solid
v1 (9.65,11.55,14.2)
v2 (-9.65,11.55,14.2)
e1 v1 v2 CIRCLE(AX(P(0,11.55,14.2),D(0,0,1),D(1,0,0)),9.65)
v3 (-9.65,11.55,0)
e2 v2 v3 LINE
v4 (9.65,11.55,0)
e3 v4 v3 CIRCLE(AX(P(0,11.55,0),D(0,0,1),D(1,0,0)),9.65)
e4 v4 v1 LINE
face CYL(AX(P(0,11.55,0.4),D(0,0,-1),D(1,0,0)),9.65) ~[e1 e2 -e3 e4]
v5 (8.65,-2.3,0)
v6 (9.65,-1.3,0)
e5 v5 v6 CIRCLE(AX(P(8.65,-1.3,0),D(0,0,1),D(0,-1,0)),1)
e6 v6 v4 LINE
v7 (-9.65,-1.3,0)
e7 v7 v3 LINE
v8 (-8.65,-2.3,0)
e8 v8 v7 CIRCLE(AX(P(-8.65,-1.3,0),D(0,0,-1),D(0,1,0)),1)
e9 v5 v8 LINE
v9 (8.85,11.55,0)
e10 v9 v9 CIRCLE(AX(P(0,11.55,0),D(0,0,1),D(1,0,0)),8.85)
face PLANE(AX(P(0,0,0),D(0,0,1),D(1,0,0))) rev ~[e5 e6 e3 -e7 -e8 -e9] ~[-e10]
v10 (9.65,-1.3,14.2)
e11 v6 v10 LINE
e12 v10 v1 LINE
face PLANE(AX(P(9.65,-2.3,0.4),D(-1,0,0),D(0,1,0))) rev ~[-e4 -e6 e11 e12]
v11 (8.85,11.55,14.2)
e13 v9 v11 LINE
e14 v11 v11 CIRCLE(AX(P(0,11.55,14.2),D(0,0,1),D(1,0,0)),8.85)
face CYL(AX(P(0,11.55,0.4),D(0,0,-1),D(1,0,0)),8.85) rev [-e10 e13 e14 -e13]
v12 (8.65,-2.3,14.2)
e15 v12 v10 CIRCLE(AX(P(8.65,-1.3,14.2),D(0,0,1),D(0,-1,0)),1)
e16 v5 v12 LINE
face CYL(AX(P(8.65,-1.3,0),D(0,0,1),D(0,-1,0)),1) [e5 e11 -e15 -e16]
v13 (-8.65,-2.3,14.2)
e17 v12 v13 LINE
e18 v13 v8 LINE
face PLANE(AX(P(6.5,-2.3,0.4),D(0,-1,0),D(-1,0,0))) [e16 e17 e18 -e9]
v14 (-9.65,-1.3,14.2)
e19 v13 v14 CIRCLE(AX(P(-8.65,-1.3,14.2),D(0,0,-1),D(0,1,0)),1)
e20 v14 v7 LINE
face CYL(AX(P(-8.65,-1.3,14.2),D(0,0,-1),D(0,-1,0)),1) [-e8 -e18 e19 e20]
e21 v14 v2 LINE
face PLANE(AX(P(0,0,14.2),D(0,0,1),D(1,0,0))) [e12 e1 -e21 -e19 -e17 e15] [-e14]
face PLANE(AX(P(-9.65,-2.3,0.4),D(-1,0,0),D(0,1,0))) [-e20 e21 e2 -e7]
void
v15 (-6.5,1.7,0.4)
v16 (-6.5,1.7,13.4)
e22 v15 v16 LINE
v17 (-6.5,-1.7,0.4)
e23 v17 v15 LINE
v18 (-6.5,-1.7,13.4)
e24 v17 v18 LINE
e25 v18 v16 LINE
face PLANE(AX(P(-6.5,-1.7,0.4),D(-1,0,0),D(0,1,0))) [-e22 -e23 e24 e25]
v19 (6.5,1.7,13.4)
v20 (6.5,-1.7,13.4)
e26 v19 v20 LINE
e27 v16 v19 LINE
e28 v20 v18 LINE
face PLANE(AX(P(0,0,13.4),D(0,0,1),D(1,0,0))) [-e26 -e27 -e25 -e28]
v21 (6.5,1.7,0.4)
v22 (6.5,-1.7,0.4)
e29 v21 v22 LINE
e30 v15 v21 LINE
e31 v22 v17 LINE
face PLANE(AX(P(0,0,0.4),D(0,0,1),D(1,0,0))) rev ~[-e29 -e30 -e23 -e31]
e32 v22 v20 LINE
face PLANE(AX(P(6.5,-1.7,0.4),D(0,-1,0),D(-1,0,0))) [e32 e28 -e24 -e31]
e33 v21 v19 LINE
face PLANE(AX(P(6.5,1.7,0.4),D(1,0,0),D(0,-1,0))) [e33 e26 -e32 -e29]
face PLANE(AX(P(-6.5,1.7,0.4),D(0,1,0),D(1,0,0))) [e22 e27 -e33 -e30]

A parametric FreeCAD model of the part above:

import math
import FreeCAD as App
import Part
import Sketcher
from FreeCAD import Vector


def edges_at(feature, points):
    """Names of the edges that pass closest to the given points."""
    edges = feature.Shape.Edges
    near = lambda p: min(range(len(edges)), key=lambda i: edges[i].distToShape(Part.Vertex(*p))[0])
    return sorted({f"Edge{near(p) + 1}" for p in points})


def add_polygon(sketch, points):
    """Adds a closed chain of lines whose ends are joined by coincident constraints."""
    first, n = sketch.GeometryCount, len(points)
    for a, b in zip(points, points[1:] + points[:1]):
        sketch.addGeometry(Part.LineSegment(App.Vector(*a, 0), App.Vector(*b, 0)), False)
    for i in range(n):
        sketch.addConstraint(Sketcher.Constraint("Coincident", first + i, 2, first + (i + 1) % n, 1))

doc = App.newDocument("Part")
body = doc.addObject("PartDesign::Body", "Body")

# Sketch on XY plane
sketch1 = body.newObject("Sketcher::SketchObject", "Sketch")
sketch1.AttachmentSupport = (doc.getObject("XY_Plane"), [""])
sketch1.MapMode = "FlatFace"
sketch1.addGeometry([
    Part.LineSegment(Vector(10, -2, 0), Vector(10, 12, 0)),  # 0
    Part.ArcOfCircle(Part.Circle(Vector(0, 12, 0), Vector(0, 0, 1), 10), math.radians(0), math.radians(180)),  # 1
    Part.LineSegment(Vector(-10, 12, 0), Vector(-10, -2, 0)),  # 2
    Part.LineSegment(Vector(-10, -2, 0), Vector(10, -2, 0)),  # 3
    Part.Circle(Vector(0, 12, 0), Vector(0, 0, 1), 9),  # 4
], False)
sketch1.addConstraint([
    Sketcher.Constraint("Tangent", 0, 2, 1, 1),
    Sketcher.Constraint("Tangent", 1, 2, 2, 1),
    Sketcher.Constraint("Coincident", 2, 2, 3, 1),
    Sketcher.Constraint("Coincident", 3, 2, 0, 1),
    Sketcher.Constraint("Vertical", 0),
    Sketcher.Constraint("Vertical", 2),
    Sketcher.Constraint("Horizontal", 3),
    Sketcher.Constraint("Coincident", 4, 3, 1, 3),
    Sketcher.Constraint("PointOnObject", 1, 3, -2),
    Sketcher.Constraint("Diameter", 4, 17.7),
    Sketcher.Constraint("Radius", 1, 9.65),
    Sketcher.Constraint("DistanceY", 0, 1, 0, 2, 13.85),
    Sketcher.Constraint("DistanceY", 2, 2, -1, 1, 2.3),
])
pad1 = body.newObject("PartDesign::Pad", "Pad")
pad1.Profile = sketch1
pad1.Length = 0.4

# Sketch on XY plane
sketch2 = body.newObject("Sketcher::SketchObject", "Sketch001")
sketch2.AttachmentSupport = (doc.getObject("XY_Plane"), [""])
sketch2.MapMode = "FlatFace"
sketch2.AttachmentOffset = App.Placement(Vector(0, 0, 0.4), App.Rotation())
sketch2.addGeometry(Part.LineSegment(Vector(-9.7, -2.3, 0), Vector(9.7, -2.3, 0)), False)  # 0
sketch2.addGeometry(Part.LineSegment(Vector(9.7, -2.3, 0), Vector(9.7, 11.6, 0)), False)  # 1
sketch2.addGeometry(Part.ArcOfCircle(Part.Circle(Vector(0, 11.6, 0), Vector(0, 0, 1), 9.7), math.radians(0), math.radians(180)), False)  # 2
sketch2.addGeometry(Part.LineSegment(Vector(-9.7, 11.6, 0), Vector(-9.7, -2.3, 0)), False)  # 3
add_polygon(sketch2, [(6.5, 1.7), (6.5, -1.7), (-6.5, -1.7), (-6.5, 1.7)])  # lines 4-7
sketch2.addGeometry(Part.Circle(Vector(0, 11.6, 0), Vector(0, 0, 1), 8.8), False)  # 8
sketch2.addConstraint([
    Sketcher.Constraint("Coincident", 0, 2, 1, 1),
    Sketcher.Constraint("Tangent", 1, 2, 2, 1),
    Sketcher.Constraint("Tangent", 2, 2, 3, 1),
    Sketcher.Constraint("Coincident", 3, 2, 0, 1),
    Sketcher.Constraint("Horizontal", 0),
    Sketcher.Constraint("Vertical", 1),
    Sketcher.Constraint("Vertical", 3),
    Sketcher.Constraint("Vertical", 4),
    Sketcher.Constraint("Horizontal", 5),
    Sketcher.Constraint("Vertical", 6),
    Sketcher.Constraint("Horizontal", 7),
    Sketcher.Constraint("Coincident", 8, 3, 2, 3),
    Sketcher.Constraint("Symmetric", 4, 2, 6, 2, -1, 1),
    Sketcher.Constraint("PointOnObject", 2, 3, -2),
    Sketcher.Constraint("Diameter", 8, 17.7),
    Sketcher.Constraint("DistanceX", 5, 2, 5, 1, 13.0),
    Sketcher.Constraint("DistanceY", 4, 2, 4, 1, 3.4),
    Sketcher.Constraint("DistanceY", 0, 2, 4, 2, 0.6),
    Sketcher.Constraint("Radius", 2, 9.65),
    Sketcher.Constraint("DistanceY", 1, 1, 1, 2, 13.85),
])
pad2 = body.newObject("PartDesign::Pad", "Pad001")
pad2.Profile = sketch2
pad2.Length = 13

# Sketch on XY plane
sketch3 = body.newObject("Sketcher::SketchObject", "Sketch002")
sketch3.AttachmentSupport = (doc.getObject("XY_Plane"), [""])
sketch3.MapMode = "FlatFace"
sketch3.AttachmentOffset = App.Placement(Vector(0, 0, 13.4), App.Rotation())
sketch3.addGeometry([
    Part.LineSegment(Vector(10, -2, 0), Vector(10, 12, 0)),  # 0
    Part.ArcOfCircle(Part.Circle(Vector(0, 12, 0), Vector(0, 0, 1), 10), math.radians(0), math.radians(180)),  # 1
    Part.LineSegment(Vector(-10, 12, 0), Vector(-10, -2, 0)),  # 2
    Part.LineSegment(Vector(-10, -2, 0), Vector(10, -2, 0)),  # 3
    Part.Circle(Vector(0, 12, 0), Vector(0, 0, 1), 9),  # 4
], False)
sketch3.addConstraint([
    Sketcher.Constraint("Tangent", 0, 2, 1, 1),
    Sketcher.Constraint("Tangent", 1, 2, 2, 1),
    Sketcher.Constraint("Coincident", 2, 2, 3, 1),
    Sketcher.Constraint("Coincident", 3, 2, 0, 1),
    Sketcher.Constraint("Vertical", 0),
    Sketcher.Constraint("Vertical", 2),
    Sketcher.Constraint("Horizontal", 3),
    Sketcher.Constraint("Coincident", 4, 3, 1, 3),
    Sketcher.Constraint("PointOnObject", 1, 3, -2),
    Sketcher.Constraint("Diameter", 4, 17.7),
    Sketcher.Constraint("Radius", 1, 9.65),
    Sketcher.Constraint("DistanceY", 0, 1, 0, 2, 13.85),
    Sketcher.Constraint("DistanceY", 2, 2, -1, 1, 2.3),
])
pad3 = body.newObject("PartDesign::Pad", "Pad002")
pad3.Profile = sketch3
pad3.Length = 0.8
doc.recompute()

fillet = body.newObject("PartDesign::Fillet", "Fillet")
fillet.Base = (pad3, edges_at(pad3, [(9.65, -2.3, 7.1), (-9.65, -2.3, 7.1)]))
fillet.Radius = 1

doc.recompute()
